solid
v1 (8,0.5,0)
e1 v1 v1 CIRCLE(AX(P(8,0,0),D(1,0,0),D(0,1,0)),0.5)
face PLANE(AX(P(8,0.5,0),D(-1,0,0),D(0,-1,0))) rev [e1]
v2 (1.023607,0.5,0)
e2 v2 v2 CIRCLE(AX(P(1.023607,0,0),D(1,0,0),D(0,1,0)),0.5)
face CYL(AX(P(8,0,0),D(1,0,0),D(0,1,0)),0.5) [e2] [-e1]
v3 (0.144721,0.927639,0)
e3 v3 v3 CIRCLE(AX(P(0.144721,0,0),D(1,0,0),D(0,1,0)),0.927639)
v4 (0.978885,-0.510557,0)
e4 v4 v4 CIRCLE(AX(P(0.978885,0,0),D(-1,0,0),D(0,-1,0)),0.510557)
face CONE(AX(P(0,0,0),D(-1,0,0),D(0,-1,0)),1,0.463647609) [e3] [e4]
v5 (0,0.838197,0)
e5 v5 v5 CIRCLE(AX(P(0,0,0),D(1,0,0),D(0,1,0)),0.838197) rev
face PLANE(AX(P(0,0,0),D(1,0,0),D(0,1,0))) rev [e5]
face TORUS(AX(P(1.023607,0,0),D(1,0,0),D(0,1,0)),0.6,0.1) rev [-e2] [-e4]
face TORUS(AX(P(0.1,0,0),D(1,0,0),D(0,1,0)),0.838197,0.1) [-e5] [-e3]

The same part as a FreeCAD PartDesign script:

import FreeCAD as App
import Part
import Sketcher

V = App.Vector
Q = App.Units.Quantity


def edges_at(feature, points):
    """Names of the edges that pass closest to the given points."""
    edges = feature.Shape.Edges
    near = lambda p: min(range(len(edges)), key=lambda i: edges[i].distToShape(Part.Vertex(*p))[0])
    return sorted({f"Edge{near(p) + 1}" for p in points})


def add_polygon(sketch, points):
    """Adds a closed chain of lines whose ends are joined by coincident constraints."""
    first, n = sketch.GeometryCount, len(points)
    for a, b in zip(points, points[1:] + points[:1]):
        sketch.addGeometry(Part.LineSegment(App.Vector(*a, 0), App.Vector(*b, 0)), False)
    for i in range(n):
        sketch.addConstraint(Sketcher.Constraint("Coincident", first + i, 2, first + (i + 1) % n, 1))

doc = App.newDocument("Part")
body = doc.addObject("PartDesign::Body", "Body")

# Sketch on XY plane
sketch1 = body.newObject("Sketcher::SketchObject", "Sketch")
sketch1.AttachmentSupport = (doc.getObject("XY_Plane"), [""])
sketch1.MapMode = "FlatFace"
add_polygon(sketch1, [(0, 1), (0, 0), (8, 0), (8, 0.5), (1, 0.5)])  # lines 0-4
sketch1.addConstraint([
    Sketcher.Constraint("Vertical", 0),
    Sketcher.Constraint("Horizontal", 1),
    Sketcher.Constraint("Vertical", 2),
    Sketcher.Constraint("Horizontal", 3),
    Sketcher.Constraint("Coincident", 0, 2, -1, 1),
    Sketcher.Constraint("DistanceX", 1, 1, 1, 2, Q("8 mm")),
    Sketcher.Constraint("DistanceX", 3, 2, 3, 1, Q("7 mm")),
    Sketcher.Constraint("DistanceY", 0, 2, 0, 1, Q("1 mm")),
    Sketcher.Constraint("DistanceY", 2, 1, 2, 2, Q("0.5 mm")),
])
revolution = body.newObject("PartDesign::Revolution", "Revolution")
revolution.Profile = sketch1
revolution.ReferenceAxis = (sketch1, ["H_Axis"])
revolution.Angle = 360
doc.recompute()

fillet = body.newObject("PartDesign::Fillet", "Fillet")
fillet.Base = (revolution, edges_at(revolution, [(1, -0.5, 0), (0, -1, 0)]))
fillet.Radius = 0.1

doc.recompute()
